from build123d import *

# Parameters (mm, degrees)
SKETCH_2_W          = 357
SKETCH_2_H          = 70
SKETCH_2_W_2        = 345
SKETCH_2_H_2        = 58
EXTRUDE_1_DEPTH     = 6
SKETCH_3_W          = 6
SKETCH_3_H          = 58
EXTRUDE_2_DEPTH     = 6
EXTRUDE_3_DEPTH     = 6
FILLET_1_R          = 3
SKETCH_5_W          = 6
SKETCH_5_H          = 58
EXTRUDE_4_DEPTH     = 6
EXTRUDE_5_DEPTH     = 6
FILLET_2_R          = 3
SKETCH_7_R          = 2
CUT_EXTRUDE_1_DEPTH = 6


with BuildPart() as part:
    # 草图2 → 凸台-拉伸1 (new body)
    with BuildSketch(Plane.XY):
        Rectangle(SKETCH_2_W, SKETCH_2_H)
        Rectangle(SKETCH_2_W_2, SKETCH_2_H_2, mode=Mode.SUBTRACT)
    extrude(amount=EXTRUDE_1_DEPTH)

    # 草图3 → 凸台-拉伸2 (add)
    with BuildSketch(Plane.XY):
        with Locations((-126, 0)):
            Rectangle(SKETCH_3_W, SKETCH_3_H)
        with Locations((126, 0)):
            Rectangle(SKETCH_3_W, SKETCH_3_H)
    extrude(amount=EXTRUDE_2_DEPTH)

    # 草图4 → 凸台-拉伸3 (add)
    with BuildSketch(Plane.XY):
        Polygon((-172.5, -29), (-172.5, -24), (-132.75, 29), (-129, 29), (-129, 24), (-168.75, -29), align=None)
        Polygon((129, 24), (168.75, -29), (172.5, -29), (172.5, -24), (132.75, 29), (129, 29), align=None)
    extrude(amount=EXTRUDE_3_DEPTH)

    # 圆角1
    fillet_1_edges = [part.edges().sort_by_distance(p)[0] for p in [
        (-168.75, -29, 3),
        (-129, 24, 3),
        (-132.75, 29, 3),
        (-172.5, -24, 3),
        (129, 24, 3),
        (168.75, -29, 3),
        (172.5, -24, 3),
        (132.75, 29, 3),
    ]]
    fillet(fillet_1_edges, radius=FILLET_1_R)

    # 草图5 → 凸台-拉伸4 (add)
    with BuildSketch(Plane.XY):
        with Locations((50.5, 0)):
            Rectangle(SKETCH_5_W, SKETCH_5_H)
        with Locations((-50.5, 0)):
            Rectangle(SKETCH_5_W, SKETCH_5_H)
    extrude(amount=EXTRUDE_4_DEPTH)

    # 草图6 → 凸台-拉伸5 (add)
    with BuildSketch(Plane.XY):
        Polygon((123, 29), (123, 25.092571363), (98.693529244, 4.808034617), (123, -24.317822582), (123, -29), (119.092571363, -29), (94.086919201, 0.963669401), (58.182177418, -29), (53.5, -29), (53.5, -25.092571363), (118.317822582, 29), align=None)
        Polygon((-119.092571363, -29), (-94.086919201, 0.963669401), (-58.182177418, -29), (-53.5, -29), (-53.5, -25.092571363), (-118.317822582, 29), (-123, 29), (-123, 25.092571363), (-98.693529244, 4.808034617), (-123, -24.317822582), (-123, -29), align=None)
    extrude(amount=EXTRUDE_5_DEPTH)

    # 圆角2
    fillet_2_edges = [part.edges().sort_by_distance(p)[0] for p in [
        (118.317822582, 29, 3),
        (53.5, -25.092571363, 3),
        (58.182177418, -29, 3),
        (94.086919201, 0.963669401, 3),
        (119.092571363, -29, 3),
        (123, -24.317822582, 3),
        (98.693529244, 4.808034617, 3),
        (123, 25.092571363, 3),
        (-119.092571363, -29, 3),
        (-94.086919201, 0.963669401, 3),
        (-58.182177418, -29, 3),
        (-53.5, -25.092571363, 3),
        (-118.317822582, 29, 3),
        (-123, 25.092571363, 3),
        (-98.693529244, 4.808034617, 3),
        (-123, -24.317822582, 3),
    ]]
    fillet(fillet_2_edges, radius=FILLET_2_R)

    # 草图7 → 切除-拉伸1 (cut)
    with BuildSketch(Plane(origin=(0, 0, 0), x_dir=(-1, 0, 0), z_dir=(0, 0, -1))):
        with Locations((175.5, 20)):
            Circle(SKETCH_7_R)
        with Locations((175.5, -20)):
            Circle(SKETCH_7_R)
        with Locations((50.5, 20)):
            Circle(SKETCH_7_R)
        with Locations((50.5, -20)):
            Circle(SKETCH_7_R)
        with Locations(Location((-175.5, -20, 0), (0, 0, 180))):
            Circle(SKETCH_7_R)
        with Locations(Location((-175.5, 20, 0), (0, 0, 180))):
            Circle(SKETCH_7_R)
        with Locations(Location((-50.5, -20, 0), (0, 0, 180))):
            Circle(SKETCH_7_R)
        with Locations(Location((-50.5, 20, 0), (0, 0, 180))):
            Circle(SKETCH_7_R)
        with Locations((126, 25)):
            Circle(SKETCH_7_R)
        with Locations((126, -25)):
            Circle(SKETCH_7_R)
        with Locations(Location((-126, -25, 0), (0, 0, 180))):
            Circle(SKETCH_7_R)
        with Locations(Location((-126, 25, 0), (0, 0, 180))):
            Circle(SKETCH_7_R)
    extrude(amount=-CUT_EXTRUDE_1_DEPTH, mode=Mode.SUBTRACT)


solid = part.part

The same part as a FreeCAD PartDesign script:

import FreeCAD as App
import Part
import Sketcher
Q = App.Units.Quantity


def edges_at(feature, points):
    """Names of the edges that pass closest to the given points."""
    edges = feature.Shape.Edges
    near = lambda p: min(range(len(edges)), key=lambda i: edges[i].distToShape(Part.Vertex(*p))[0])
    return sorted({f"Edge{near(p) + 1}" for p in points})


def add_polygon(sketch, points):
    """Adds a closed chain of lines whose ends are joined by coincident constraints."""
    first, n = sketch.GeometryCount, len(points)
    for a, b in zip(points, points[1:] + points[:1]):
        sketch.addGeometry(Part.LineSegment(App.Vector(*a, 0), App.Vector(*b, 0)), False)
    for i in range(n):
        sketch.addConstraint(Sketcher.Constraint("Coincident", first + i, 2, first + (i + 1) % n, 1))

doc = App.newDocument("Part")
body = doc.addObject("PartDesign::Body", "Body")

# Sketch on XY plane
sketch1 = body.newObject("Sketcher::SketchObject", "Sketch")
sketch1.AttachmentSupport = (doc.getObject("XY_Plane"), [""])
sketch1.MapMode = "FlatFace"
add_polygon(sketch1, [(-178, 35), (-178, -35), (178, -35), (178, 35)])  # lines 0-3
add_polygon(sketch1, [(172, -29), (-172, -29), (-172, 29), (172, 29)])  # lines 4-7
sketch1.addConstraint(Sketcher.Constraint("Vertical", 0))
sketch1.addConstraint(Sketcher.Constraint("Horizontal", 1))
sketch1.addConstraint(Sketcher.Constraint("Vertical", 2))
sketch1.addConstraint(Sketcher.Constraint("Horizontal", 3))
sketch1.addConstraint(Sketcher.Constraint("Horizontal", 4))
sketch1.addConstraint(Sketcher.Constraint("Vertical", 5))
sketch1.addConstraint(Sketcher.Constraint("Horizontal", 6))
sketch1.addConstraint(Sketcher.Constraint("Vertical", 7))
sketch1.addConstraint(Sketcher.Constraint("Symmetric", 0, 2, 2, 2, -1, 1))
sketch1.addConstraint(Sketcher.Constraint("Symmetric", 4, 2, 6, 2, -1, 1))
sketch1.addConstraint(Sketcher.Constraint("DistanceX", 1, 1, 1, 2, Q("357 mm")))
sketch1.addConstraint(Sketcher.Constraint("DistanceX", 4, 2, 4, 1, Q("345 mm")))
sketch1.addConstraint(Sketcher.Constraint("DistanceY", 0, 2, 0, 1, Q("70 mm")))
sketch1.addConstraint(Sketcher.Constraint("DistanceY", 5, 1, 5, 2, Q("58 mm")))
pad1 = body.newObject("PartDesign::Pad", "Pad")
pad1.Profile = sketch1
pad1.Length = 6

# Sketch on XY plane
sketch2 = body.newObject("Sketcher::SketchObject", "Sketch001")
sketch2.AttachmentSupport = (doc.getObject("XY_Plane"), [""])
sketch2.MapMode = "FlatFace"
add_polygon(sketch2, [(-129, 29), (-129, -29), (-123, -29), (-123, 29)])  # lines 0-3
add_polygon(sketch2, [(123, 29), (123, -29), (129, -29), (129, 29)])  # lines 4-7
sketch2.addConstraint(Sketcher.Constraint("Vertical", 0))
sketch2.addConstraint(Sketcher.Constraint("Horizontal", 1))
sketch2.addConstraint(Sketcher.Constraint("Vertical", 2))
sketch2.addConstraint(Sketcher.Constraint("Horizontal", 3))
sketch2.addConstraint(Sketcher.Constraint("Vertical", 4))
sketch2.addConstraint(Sketcher.Constraint("Horizontal", 5))
sketch2.addConstraint(Sketcher.Constraint("Vertical", 6))
sketch2.addConstraint(Sketcher.Constraint("Horizontal", 7))
sketch2.addConstraint(Sketcher.Constraint("Symmetric", 2, 2, 4, 2, -1, 1))
sketch2.addConstraint(Sketcher.Constraint("Symmetric", 0, 2, 6, 2, -1, 1))
sketch2.addConstraint(Sketcher.Constraint("Horizontal", 1, 2, 4, 2))
sketch2.addConstraint(Sketcher.Constraint("DistanceX", 1, 1, 1, 2, Q("6 mm")))
sketch2.addConstraint(Sketcher.Constraint("DistanceY", 0, 2, 0, 1, Q("58 mm")))
sketch2.addConstraint(Sketcher.Constraint("DistanceX", 0, 2, -1, 1, Q("129 mm")))
pad2 = body.newObject("PartDesign::Pad", "Pad001")
pad2.Profile = sketch2
pad2.Length = 6

# Sketch on XY plane
sketch3 = body.newObject("Sketcher::SketchObject", "Sketch002")
sketch3.AttachmentSupport = (doc.getObject("XY_Plane"), [""])
sketch3.MapMode = "FlatFace"
add_polygon(sketch3, [(-172.5, -24), (-172.5, -29), (-168.8, -29), (-129, 24), (-129, 29), (-132.8, 29)])  # lines 0-5
add_polygon(sketch3, [(129, 24), (168.8, -29), (172.5, -29), (172.5, -24), (132.8, 29), (129, 29)])  # lines 6-11
sketch3.addConstraint(Sketcher.Constraint("Vertical", 0))
sketch3.addConstraint(Sketcher.Constraint("Horizontal", 1))
sketch3.addConstraint(Sketcher.Constraint("Vertical", 3))
sketch3.addConstraint(Sketcher.Constraint("Horizontal", 4))
sketch3.addConstraint(Sketcher.Constraint("Horizontal", 7))
sketch3.addConstraint(Sketcher.Constraint("Vertical", 8))
sketch3.addConstraint(Sketcher.Constraint("Horizontal", 10))
sketch3.addConstraint(Sketcher.Constraint("Vertical", 11))
sketch3.addConstraint(Sketcher.Constraint("Symmetric", 1, 2, 6, 2, -2))
sketch3.addConstraint(Sketcher.Constraint("Symmetric", 5, 2, 8, 2, -2))
sketch3.addConstraint(Sketcher.Constraint("Symmetric", 4, 2, 9, 2, -2))
sketch3.addConstraint(Sketcher.Constraint("Symmetric", 2, 2, 11, 2, -2))
sketch3.addConstraint(Sketcher.Constraint("Parallel", 2, 5))
sketch3.addConstraint(Sketcher.Constraint("Equal", 1, 4))
sketch3.addConstraint(Sketcher.Constraint("DistanceY", 0, 2, 0, 1, Q("5 mm")))
sketch3.addConstraint(Sketcher.Constraint("DistanceY", 0, 2, -1, 1, Q("29 mm")))
sketch3.addConstraint(Sketcher.Constraint("DistanceX", 2, 2, -1, 1, Q("129 mm")))
sketch3.addConstraint(Sketcher.Constraint("DistanceY", -1, 1, 2, 2, Q("24 mm")))
sketch3.addConstraint(Sketcher.Constraint("DistanceX", 1, 2, 4, 2, Q("36 mm")))
sketch3.addConstraint(Sketcher.Constraint("DistanceX", 1, 1, 1, 2, Q("3.75 mm")))
pad3 = body.newObject("PartDesign::Pad", "Pad002")
pad3.Profile = sketch3
pad3.Length = 6
doc.recompute()

fillet = body.newObject("PartDesign::Fillet", "Fillet")
fillet.Base = (pad3, edges_at(pad3, [
    (-168.75, -29, 3),
    (-129, 24, 3),
    (-132.75, 29, 3),
    (-172.5, -24, 3),
    (129, 24, 3),
    (168.75, -29, 3),
    (172.5, -24, 3),
    (132.75, 29, 3),
]))
fillet.Radius = 3

# Sketch on XY plane
sketch4 = body.newObject("Sketcher::SketchObject", "Sketch003")
sketch4.AttachmentSupport = (doc.getObject("XY_Plane"), [""])
sketch4.MapMode = "FlatFace"
add_polygon(sketch4, [(48, 29), (48, -29), (54, -29), (54, 29)])  # lines 0-3
add_polygon(sketch4, [(-54, 29), (-54, -29), (-48, -29), (-48, 29)])  # lines 4-7
sketch4.addConstraint(Sketcher.Constraint("Vertical", 0))
sketch4.addConstraint(Sketcher.Constraint("Horizontal", 1))
sketch4.addConstraint(Sketcher.Constraint("Vertical", 2))
sketch4.addConstraint(Sketcher.Constraint("Horizontal", 3))
sketch4.addConstraint(Sketcher.Constraint("Vertical", 4))
sketch4.addConstraint(Sketcher.Constraint("Horizontal", 5))
sketch4.addConstraint(Sketcher.Constraint("Vertical", 6))
sketch4.addConstraint(Sketcher.Constraint("Horizontal", 7))
sketch4.addConstraint(Sketcher.Constraint("Symmetric", 2, 2, 4, 2, -1, 1))
sketch4.addConstraint(Sketcher.Constraint("Symmetric", 0, 2, 6, 2, -1, 1))
sketch4.addConstraint(Sketcher.Constraint("Horizontal", 1, 2, 4, 2))
sketch4.addConstraint(Sketcher.Constraint("DistanceX", 1, 1, 1, 2, Q("6 mm")))
sketch4.addConstraint(Sketcher.Constraint("DistanceY", 0, 2, 0, 1, Q("58 mm")))
sketch4.addConstraint(Sketcher.Constraint("DistanceX", 4, 2, 0, 2, Q("101 mm")))
pad4 = body.newObject("PartDesign::Pad", "Pad003")
pad4.Profile = sketch4
pad4.Length = 6

# Sketch on XY plane
sketch5 = body.newObject("Sketcher::SketchObject", "Sketch004")
sketch5.AttachmentSupport = (doc.getObject("XY_Plane"), [""])
sketch5.MapMode = "FlatFace"
add_polygon(sketch5, [(123, 25.1), (123, 29), (118.3, 29), (53.5, -25.1), (53.5, -29), (58.2, -29), (94.1, 1), (119.1, -29), (123, -29), (123, -24.3), (98.7, 4.8)])  # lines 0-10
add_polygon(sketch5, [(-119.1, -29), (-94.1, 1), (-58.2, -29), (-53.5, -29), (-53.5, -25.1), (-118.3, 29), (-123, 29), (-123, 25.1), (-98.7, 4.8), (-123, -24.3), (-123, -29)])  # lines 11-21
sketch5.addConstraint(Sketcher.Constraint("Vertical", 0))
sketch5.addConstraint(Sketcher.Constraint("Horizontal", 1))
sketch5.addConstraint(Sketcher.Constraint("Vertical", 3))
sketch5.addConstraint(Sketcher.Constraint("Horizontal", 4))
sketch5.addConstraint(Sketcher.Constraint("Horizontal", 7))
sketch5.addConstraint(Sketcher.Constraint("Vertical", 8))
sketch5.addConstraint(Sketcher.Constraint("Horizontal", 13))
sketch5.addConstraint(Sketcher.Constraint("Vertical", 14))
sketch5.addConstraint(Sketcher.Constraint("Horizontal", 16))
sketch5.addConstraint(Sketcher.Constraint("Vertical", 17))
sketch5.addConstraint(Sketcher.Constraint("Vertical", 20))
sketch5.addConstraint(Sketcher.Constraint("Horizontal", 21))
sketch5.addConstraint(Sketcher.Constraint("Symmetric", 7, 2, 16, 2, -1, 1))
sketch5.addConstraint(Sketcher.Constraint("Symmetric", 0, 2, 20, 2, -1, 1))
sketch5.addConstraint(Sketcher.Constraint("Symmetric", 5, 2, 11, 2, -2))
sketch5.addConstraint(Sketcher.Constraint("Symmetric", 4, 2, 12, 2, -2))
sketch5.addConstraint(Sketcher.Constraint("Symmetric", 2, 2, 14, 2, -2))
sketch5.addConstraint(Sketcher.Constraint("Symmetric", 1, 2, 15, 2, -2))
sketch5.addConstraint(Sketcher.Constraint("Symmetric", 10, 2, 17, 2, -2))
sketch5.addConstraint(Sketcher.Constraint("Symmetric", 9, 2, 18, 2, -2))
sketch5.addConstraint(Sketcher.Constraint("Parallel", 2, 5))
sketch5.addConstraint(Sketcher.Constraint("Perpendicular", 5, 6))
sketch5.addConstraint(Sketcher.Constraint("Parallel", 6, 9))
sketch5.addConstraint(Sketcher.Constraint("Perpendicular", 9, 10))
sketch5.addConstraint(Sketcher.Constraint("Perpendicular", 11, 12))
sketch5.addConstraint(Sketcher.Constraint("Perpendicular", 18, 19))
sketch5.addConstraint(Sketcher.Constraint("Horizontal", 4, 2, 6, 2))
sketch5.addConstraint(Sketcher.Constraint("Equal", 1, 4))
sketch5.addConstraint(Sketcher.Constraint("Equal", 21, 0))
sketch5.addConstraint(Sketcher.Constraint("Equal", 0, 3))
sketch5.addConstraint(Sketcher.Constraint("Equal", 16, 8))
sketch5.addConstraint(Sketcher.Constraint("DistanceX", -1, 1, 0, 2, Q("123 mm")))
sketch5.addConstraint(Sketcher.Constraint("DistanceY", -1, 1, 0, 2, Q("29 mm")))
sketch5.addConstraint(Sketcher.Constraint("DistanceX", 13, 2, 3, 2, Q("107 mm")))
sketch5.addConstraint(Sketcher.Constraint("Distance", 10, Q("31.6586 mm")))
sketch5.addConstraint(Sketcher.Constraint("DistanceX", 7, 1, 7, 2, Q("3.907429 mm")))
pad5 = body.newObject("PartDesign::Pad", "Pad004")
pad5.Profile = sketch5
pad5.Length = 6
doc.recompute()

fillet2 = body.newObject("PartDesign::Fillet", "Fillet001")
fillet2.Base = (pad5, edges_at(pad5, [
    (118.318, 29, 3),
    (53.5, -25.093, 3),
    (58.182, -29, 3),
    (94.087, 0.964, 3),
    (119.093, -29, 3),
    (123, -24.318, 3),
    (98.694, 4.808, 3),
    (123, 25.093, 3),
    (-119.093, -29, 3),
    (-94.087, 0.964, 3),
    (-58.182, -29, 3),
    (-53.5, -25.093, 3),
    (-118.318, 29, 3),
    (-123, 25.093, 3),
    (-98.694, 4.808, 3),
    (-123, -24.318, 3),
]))
fillet2.Radius = 3

# Sketch on XY plane
sketch6 = body.newObject("Sketcher::SketchObject", "Sketch005")
sketch6.AttachmentSupport = (doc.getObject("XY_Plane"), [""])
sketch6.MapMode = "FlatFace"
sketch6.addGeometry(Part.Circle(App.Vector(-175.5, 20, 0), App.Vector(0, 0, 1), 2), False)
sketch6.addGeometry(Part.Circle(App.Vector(-175.5, -20, 0), App.Vector(0, 0, 1), 2), False)
sketch6.addGeometry(Part.Circle(App.Vector(-50.5, 20, 0), App.Vector(0, 0, 1), 2), False)
sketch6.addGeometry(Part.Circle(App.Vector(-50.5, -20, 0), App.Vector(0, 0, 1), 2), False)
sketch6.addGeometry(Part.Circle(App.Vector(175.5, -20, 0), App.Vector(0, 0, 1), 2), False)
sketch6.addGeometry(Part.Circle(App.Vector(175.5, 20, 0), App.Vector(0, 0, 1), 2), False)
sketch6.addGeometry(Part.Circle(App.Vector(50.5, -20, 0), App.Vector(0, 0, 1), 2), False)
sketch6.addGeometry(Part.Circle(App.Vector(50.5, 20, 0), App.Vector(0, 0, 1), 2), False)
sketch6.addGeometry(Part.Circle(App.Vector(-126, 25, 0), App.Vector(0, 0, 1), 2), False)
sketch6.addGeometry(Part.Circle(App.Vector(-126, -25, 0), App.Vector(0, 0, 1), 2), False)
sketch6.addGeometry(Part.Circle(App.Vector(126, -25, 0), App.Vector(0, 0, 1), 2), False)
sketch6.addGeometry(Part.Circle(App.Vector(126, 25, 0), App.Vector(0, 0, 1), 2), False)
sketch6.addConstraint(Sketcher.Constraint("Equal", 0, 1))
sketch6.addConstraint(Sketcher.Constraint("Equal", 1, 2))
sketch6.addConstraint(Sketcher.Constraint("Equal", 2, 3))
sketch6.addConstraint(Sketcher.Constraint("Equal", 3, 4))
sketch6.addConstraint(Sketcher.Constraint("Equal", 4, 5))
sketch6.addConstraint(Sketcher.Constraint("Equal", 5, 6))
sketch6.addConstraint(Sketcher.Constraint("Equal", 6, 7))
sketch6.addConstraint(Sketcher.Constraint("Equal", 7, 8))
sketch6.addConstraint(Sketcher.Constraint("Equal", 8, 9))
sketch6.addConstraint(Sketcher.Constraint("Equal", 9, 10))
sketch6.addConstraint(Sketcher.Constraint("Equal", 10, 11))
sketch6.addConstraint(Sketcher.Constraint("Symmetric", 0, 3, 4, 3, -1, 1))
sketch6.addConstraint(Sketcher.Constraint("Symmetric", 1, 3, 5, 3, -1, 1))
sketch6.addConstraint(Sketcher.Constraint("Symmetric", 2, 3, 6, 3, -1, 1))
sketch6.addConstraint(Sketcher.Constraint("Symmetric", 3, 3, 7, 3, -1, 1))
sketch6.addConstraint(Sketcher.Constraint("Symmetric", 8, 3, 10, 3, -1, 1))
sketch6.addConstraint(Sketcher.Constraint("Symmetric", 9, 3, 11, 3, -1, 1))
sketch6.addConstraint(Sketcher.Constraint("Symmetric", 1, 3, 4, 3, -2))
sketch6.addConstraint(Sketcher.Constraint("Symmetric", 3, 3, 6, 3, -2))
sketch6.addConstraint(Sketcher.Constraint("Symmetric", 9, 3, 10, 3, -2))
sketch6.addConstraint(Sketcher.Constraint("Horizontal", 0, 3, 2, 3))
sketch6.addConstraint(Sketcher.Constraint("Diameter", 0, Q("4 mm")))
sketch6.addConstraint(Sketcher.Constraint("DistanceY", -1, 1, 0, 3, Q("20 mm")))
sketch6.addConstraint(Sketcher.Constraint("DistanceX", 8, 3, -1, 1, Q("126 mm")))
sketch6.addConstraint(Sketcher.Constraint("DistanceY", -1, 1, 8, 3, Q("25 mm")))
sketch6.addConstraint(Sketcher.Constraint("DistanceX", 0, 3, 2, 3, Q("125 mm")))
sketch6.addConstraint(Sketcher.Constraint("DistanceX", 3, 3, 4, 3, Q("226 mm")))
pocket1 = body.newObject("PartDesign::Pocket", "Pocket")
pocket1.Profile = sketch6
pocket1.Length = 6
pocket1.Reversed = True

doc.recompute()
